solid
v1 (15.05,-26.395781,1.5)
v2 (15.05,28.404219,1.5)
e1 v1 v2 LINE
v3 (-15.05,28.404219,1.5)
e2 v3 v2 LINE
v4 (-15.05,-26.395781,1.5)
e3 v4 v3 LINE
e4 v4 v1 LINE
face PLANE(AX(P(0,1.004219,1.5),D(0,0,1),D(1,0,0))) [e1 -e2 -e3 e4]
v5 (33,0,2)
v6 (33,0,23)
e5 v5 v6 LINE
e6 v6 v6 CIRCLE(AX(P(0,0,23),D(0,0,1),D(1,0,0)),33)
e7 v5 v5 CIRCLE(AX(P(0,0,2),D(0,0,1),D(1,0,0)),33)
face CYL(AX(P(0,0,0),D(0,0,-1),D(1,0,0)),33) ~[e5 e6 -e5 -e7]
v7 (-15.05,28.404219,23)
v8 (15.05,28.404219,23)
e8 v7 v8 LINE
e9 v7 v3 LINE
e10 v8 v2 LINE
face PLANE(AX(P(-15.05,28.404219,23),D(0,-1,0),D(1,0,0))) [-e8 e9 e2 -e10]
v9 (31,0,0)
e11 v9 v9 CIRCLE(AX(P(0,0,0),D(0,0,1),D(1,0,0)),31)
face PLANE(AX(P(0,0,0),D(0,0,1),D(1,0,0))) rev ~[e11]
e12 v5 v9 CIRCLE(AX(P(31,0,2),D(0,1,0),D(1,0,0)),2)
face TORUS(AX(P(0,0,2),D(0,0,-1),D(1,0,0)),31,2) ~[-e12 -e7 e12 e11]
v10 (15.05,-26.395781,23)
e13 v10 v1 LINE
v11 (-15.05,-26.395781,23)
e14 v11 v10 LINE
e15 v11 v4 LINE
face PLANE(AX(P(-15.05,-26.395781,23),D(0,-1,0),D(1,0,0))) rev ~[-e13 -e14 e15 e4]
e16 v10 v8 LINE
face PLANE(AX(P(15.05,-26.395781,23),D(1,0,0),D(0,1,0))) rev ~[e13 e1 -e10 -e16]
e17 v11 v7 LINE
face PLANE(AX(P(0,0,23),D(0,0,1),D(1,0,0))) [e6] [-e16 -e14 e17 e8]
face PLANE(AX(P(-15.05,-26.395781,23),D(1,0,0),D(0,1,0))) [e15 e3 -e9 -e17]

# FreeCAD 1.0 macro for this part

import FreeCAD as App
import Part
import Sketcher
from FreeCAD import Vector


def edges_at(feature, points):
    """Names of the edges that pass closest to the given points."""
    edges = feature.Shape.Edges
    near = lambda p: min(range(len(edges)), key=lambda i: edges[i].distToShape(Part.Vertex(*p))[0])
    return sorted({f"Edge{near(p) + 1}" for p in points})

doc = App.newDocument("Part")
body = doc.addObject("PartDesign::Body", "Body")

# Sketch on XY plane
sketch1 = body.newObject("Sketcher::SketchObject", "Sketch")
sketch1.AttachmentSupport = (doc.getObject("XY_Plane"), [""])
sketch1.MapMode = "FlatFace"
sketch1.addGeometry(Part.Circle(Vector(0, 0, 0), Vector(0, 0, 1), 33), False)
sketch1.addConstraint(Sketcher.Constraint("Coincident", 0, 3, -1, 1))
sketch1.addConstraint(Sketcher.Constraint("Diameter", 0, 66.0))
pad1 = body.newObject("PartDesign::Pad", "Pad")
pad1.Profile = sketch1
pad1.Length = 23

# Sketch on XY plane
sketch2 = body.newObject("Sketcher::SketchObject", "Sketch001")
sketch2.AttachmentSupport = (doc.getObject("XY_Plane"), [""])
sketch2.MapMode = "FlatFace"
sketch2.AttachmentOffset = App.Placement(Vector(0, 0, 23), App.Rotation())
sketch2.addGeometry(Part.LineSegment(Vector(-15.05, 28.404219, 0), Vector(-15.05, -26.395781, 0)), False)
sketch2.addGeometry(Part.LineSegment(Vector(-15.05, -26.395781, 0), Vector(15.05, -26.395781, 0)), False)
sketch2.addGeometry(Part.LineSegment(Vector(15.05, -26.395781, 0), Vector(15.05, 28.404219, 0)), False)
sketch2.addGeometry(Part.LineSegment(Vector(15.05, 28.404219, 0), Vector(-15.05, 28.404219, 0)), False)
sketch2.addConstraint(Sketcher.Constraint("Coincident", 0, 2, 1, 1))
sketch2.addConstraint(Sketcher.Constraint("Coincident", 1, 2, 2, 1))
sketch2.addConstraint(Sketcher.Constraint("Coincident", 2, 2, 3, 1))
sketch2.addConstraint(Sketcher.Constraint("Coincident", 3, 2, 0, 1))
sketch2.addConstraint(Sketcher.Constraint("Vertical", 0))
sketch2.addConstraint(Sketcher.Constraint("Horizontal", 1))
sketch2.addConstraint(Sketcher.Constraint("Vertical", 2))
sketch2.addConstraint(Sketcher.Constraint("Horizontal", 3))
sketch2.addConstraint(Sketcher.Constraint("DistanceX", 1, 1, 1, 2, 30.1))
sketch2.addConstraint(Sketcher.Constraint("DistanceY", 0, 2, 0, 1, 54.8))
sketch2.addConstraint(Sketcher.Constraint("DistanceX", 0, 2, -1, 1, 15.05))
sketch2.addConstraint(Sketcher.Constraint("DistanceY", 0, 2, -1, 1, 26.395781))
pocket1 = body.newObject("PartDesign::Pocket", "Pocket")
pocket1.Profile = sketch2
pocket1.Length = 21.5
doc.recompute()

fillet = body.newObject("PartDesign::Fillet", "Fillet")
fillet.Base = (pocket1, edges_at(pocket1, [(-33, 0, 0)]))
fillet.Radius = 2

doc.recompute()
